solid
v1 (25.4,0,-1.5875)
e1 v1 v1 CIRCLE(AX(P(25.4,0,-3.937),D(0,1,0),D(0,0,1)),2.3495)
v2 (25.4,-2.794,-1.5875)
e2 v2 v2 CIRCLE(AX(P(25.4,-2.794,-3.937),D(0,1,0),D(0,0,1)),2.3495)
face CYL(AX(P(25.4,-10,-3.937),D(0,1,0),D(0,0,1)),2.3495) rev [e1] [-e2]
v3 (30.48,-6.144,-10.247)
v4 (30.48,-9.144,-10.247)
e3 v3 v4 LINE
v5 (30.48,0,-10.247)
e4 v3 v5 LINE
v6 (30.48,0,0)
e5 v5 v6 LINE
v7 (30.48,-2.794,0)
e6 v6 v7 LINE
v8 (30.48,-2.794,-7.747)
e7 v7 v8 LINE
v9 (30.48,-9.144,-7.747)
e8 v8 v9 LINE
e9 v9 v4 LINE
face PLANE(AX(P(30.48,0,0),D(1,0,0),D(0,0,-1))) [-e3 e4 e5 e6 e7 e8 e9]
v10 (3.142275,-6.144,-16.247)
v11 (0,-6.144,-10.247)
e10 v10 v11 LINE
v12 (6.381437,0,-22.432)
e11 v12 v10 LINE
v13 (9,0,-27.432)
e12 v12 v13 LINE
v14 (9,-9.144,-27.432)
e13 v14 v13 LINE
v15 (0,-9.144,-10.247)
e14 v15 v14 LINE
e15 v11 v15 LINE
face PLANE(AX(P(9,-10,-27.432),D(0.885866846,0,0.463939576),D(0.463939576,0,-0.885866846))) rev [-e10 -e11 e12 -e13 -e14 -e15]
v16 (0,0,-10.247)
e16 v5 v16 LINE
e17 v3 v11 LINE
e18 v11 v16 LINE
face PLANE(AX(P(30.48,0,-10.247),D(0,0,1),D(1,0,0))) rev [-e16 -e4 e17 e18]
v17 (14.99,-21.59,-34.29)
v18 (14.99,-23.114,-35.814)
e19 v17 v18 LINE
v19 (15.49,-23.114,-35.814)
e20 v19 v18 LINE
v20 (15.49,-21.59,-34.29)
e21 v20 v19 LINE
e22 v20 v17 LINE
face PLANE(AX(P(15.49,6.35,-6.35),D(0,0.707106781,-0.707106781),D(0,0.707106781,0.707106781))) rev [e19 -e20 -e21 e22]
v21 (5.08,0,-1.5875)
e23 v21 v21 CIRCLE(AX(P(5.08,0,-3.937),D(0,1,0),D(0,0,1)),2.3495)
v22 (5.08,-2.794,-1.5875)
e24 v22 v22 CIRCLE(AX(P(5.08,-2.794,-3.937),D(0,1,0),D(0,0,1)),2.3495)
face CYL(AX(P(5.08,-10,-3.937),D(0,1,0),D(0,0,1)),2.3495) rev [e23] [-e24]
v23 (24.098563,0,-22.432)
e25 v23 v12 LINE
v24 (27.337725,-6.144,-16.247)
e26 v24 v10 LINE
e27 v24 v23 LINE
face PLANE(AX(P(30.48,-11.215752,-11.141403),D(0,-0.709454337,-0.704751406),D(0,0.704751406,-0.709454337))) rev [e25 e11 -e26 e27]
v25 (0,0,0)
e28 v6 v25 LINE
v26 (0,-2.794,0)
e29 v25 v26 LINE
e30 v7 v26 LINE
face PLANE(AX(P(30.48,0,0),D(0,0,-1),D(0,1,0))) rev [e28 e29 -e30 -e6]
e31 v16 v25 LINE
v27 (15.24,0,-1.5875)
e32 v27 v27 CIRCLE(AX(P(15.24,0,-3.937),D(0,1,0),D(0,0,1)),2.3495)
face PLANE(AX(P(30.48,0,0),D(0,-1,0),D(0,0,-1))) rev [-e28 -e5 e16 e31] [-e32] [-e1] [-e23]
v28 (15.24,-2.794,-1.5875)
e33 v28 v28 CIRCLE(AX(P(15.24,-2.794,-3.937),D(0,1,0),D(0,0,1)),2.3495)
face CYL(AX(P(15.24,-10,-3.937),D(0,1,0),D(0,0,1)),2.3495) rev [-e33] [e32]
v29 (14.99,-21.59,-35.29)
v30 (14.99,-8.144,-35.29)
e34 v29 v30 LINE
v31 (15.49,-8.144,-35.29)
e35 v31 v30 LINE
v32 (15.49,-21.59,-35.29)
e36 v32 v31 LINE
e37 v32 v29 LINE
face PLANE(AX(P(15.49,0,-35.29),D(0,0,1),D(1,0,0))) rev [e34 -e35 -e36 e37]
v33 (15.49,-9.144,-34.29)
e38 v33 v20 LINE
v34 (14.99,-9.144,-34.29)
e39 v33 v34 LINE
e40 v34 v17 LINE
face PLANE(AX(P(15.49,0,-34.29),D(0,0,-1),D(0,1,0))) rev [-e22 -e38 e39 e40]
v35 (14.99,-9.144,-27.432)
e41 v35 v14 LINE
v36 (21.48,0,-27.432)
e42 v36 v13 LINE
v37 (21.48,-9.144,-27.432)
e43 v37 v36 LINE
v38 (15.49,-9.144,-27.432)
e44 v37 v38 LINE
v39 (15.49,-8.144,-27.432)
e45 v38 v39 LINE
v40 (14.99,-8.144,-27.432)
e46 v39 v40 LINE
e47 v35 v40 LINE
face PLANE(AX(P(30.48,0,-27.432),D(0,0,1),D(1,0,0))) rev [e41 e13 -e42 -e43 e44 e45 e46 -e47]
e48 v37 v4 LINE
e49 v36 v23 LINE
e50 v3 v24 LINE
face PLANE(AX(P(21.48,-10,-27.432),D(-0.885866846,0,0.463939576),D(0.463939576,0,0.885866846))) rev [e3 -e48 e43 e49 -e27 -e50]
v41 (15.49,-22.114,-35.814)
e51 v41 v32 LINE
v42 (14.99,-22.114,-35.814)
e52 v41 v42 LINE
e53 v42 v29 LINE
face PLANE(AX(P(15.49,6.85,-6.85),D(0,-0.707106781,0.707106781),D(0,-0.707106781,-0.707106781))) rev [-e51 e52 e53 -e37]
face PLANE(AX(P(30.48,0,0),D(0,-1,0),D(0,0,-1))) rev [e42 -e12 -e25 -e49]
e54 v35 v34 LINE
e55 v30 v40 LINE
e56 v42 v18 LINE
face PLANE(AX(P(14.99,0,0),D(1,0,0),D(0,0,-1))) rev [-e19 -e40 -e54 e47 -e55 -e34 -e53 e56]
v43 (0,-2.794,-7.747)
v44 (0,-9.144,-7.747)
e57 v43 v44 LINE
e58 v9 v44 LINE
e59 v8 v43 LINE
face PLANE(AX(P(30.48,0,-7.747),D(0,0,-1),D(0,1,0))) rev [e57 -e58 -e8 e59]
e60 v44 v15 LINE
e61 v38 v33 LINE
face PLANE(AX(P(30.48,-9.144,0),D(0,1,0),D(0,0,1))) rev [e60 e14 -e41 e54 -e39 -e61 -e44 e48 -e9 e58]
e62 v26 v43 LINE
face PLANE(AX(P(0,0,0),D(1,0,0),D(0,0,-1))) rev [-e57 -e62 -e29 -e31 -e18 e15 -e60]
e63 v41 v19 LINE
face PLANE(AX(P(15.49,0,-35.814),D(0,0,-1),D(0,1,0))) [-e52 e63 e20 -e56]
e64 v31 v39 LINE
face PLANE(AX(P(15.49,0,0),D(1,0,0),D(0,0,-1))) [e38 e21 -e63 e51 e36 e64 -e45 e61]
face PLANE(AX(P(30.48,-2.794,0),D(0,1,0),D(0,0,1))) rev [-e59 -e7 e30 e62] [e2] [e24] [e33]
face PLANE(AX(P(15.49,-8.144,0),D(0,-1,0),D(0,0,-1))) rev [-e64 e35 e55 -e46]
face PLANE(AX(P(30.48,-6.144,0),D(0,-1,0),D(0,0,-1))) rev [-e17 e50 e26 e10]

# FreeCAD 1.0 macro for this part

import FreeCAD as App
import Part
import Sketcher
Q = App.Units.Quantity


def add_polygon(sketch, points):
    """Adds a closed chain of lines whose ends are joined by coincident constraints."""
    first, n = sketch.GeometryCount, len(points)
    for a, b in zip(points, points[1:] + points[:1]):
        sketch.addGeometry(Part.LineSegment(App.Vector(*a, 0), App.Vector(*b, 0)), False)
    for i in range(n):
        sketch.addConstraint(Sketcher.Constraint("Coincident", first + i, 2, first + (i + 1) % n, 1))

doc = App.newDocument("Part")
body = doc.addObject("PartDesign::Body", "Body")

# Sketch on YZ plane
sketch1 = doc.addObject("Sketcher::SketchObject", "Sketch")
body.addObject(sketch1)
sketch1.AttachmentSupport = (doc.YZ_Plane, [""])
sketch1.MapMode = "FlatFace"
add_polygon(sketch1, [(-6.1, -10.2), (0, -10.2), (0, 0), (-2.8, 0), (-2.8, -7.7), (-9.1, -7.7), (-9.1, -27.4), (0, -27.4), (0, -22.4), (-6.1, -16.2)])  # lines 0-9
sketch1.addConstraint(Sketcher.Constraint("Horizontal", 0))
sketch1.addConstraint(Sketcher.Constraint("Vertical", 1))
sketch1.addConstraint(Sketcher.Constraint("Horizontal", 2))
sketch1.addConstraint(Sketcher.Constraint("Vertical", 3))
sketch1.addConstraint(Sketcher.Constraint("Horizontal", 4))
sketch1.addConstraint(Sketcher.Constraint("Vertical", 5))
sketch1.addConstraint(Sketcher.Constraint("Horizontal", 6))
sketch1.addConstraint(Sketcher.Constraint("Vertical", 7))
sketch1.addConstraint(Sketcher.Constraint("Vertical", 9))
sketch1.addConstraint(Sketcher.Constraint("Coincident", 1, 2, -1, 1))
sketch1.addConstraint(Sketcher.Constraint("PointOnObject", 6, 2, -2))
sketch1.addConstraint(Sketcher.Constraint("DistanceX", 2, 2, 2, 1, Q("0.11 in")))
sketch1.addConstraint(Sketcher.Constraint("DistanceX", 4, 2, 4, 1, Q("0.25 in")))
sketch1.addConstraint(Sketcher.Constraint("DistanceY", 3, 2, 3, 1, Q("0.305 in")))
sketch1.addConstraint(Sketcher.Constraint("DistanceY", 5, 2, 5, 1, Q("0.775 in")))
sketch1.addConstraint(Sketcher.Constraint("DistanceX", 0, 1, 0, 2, Q("6.144 mm")))
sketch1.addConstraint(Sketcher.Constraint("DistanceY", 1, 1, 1, 2, Q("10.247 mm")))
sketch1.addConstraint(Sketcher.Constraint("DistanceY", 7, 1, 7, 2, Q("5 mm")))
sketch1.addConstraint(Sketcher.Constraint("DistanceY", 9, 1, 9, 2, Q("6 mm")))
pad1 = doc.addObject("PartDesign::Pad", "Pad")
body.addObject(pad1)
pad1.Profile = sketch1
pad1.Length = Q("1.2 in")

# Sketch on XZ plane
sketch2 = doc.addObject("Sketcher::SketchObject", "Sketch001")
body.addObject(sketch2)
sketch2.AttachmentSupport = (doc.XZ_Plane, [""])
sketch2.MapMode = "FlatFace"
sketch2.addGeometry(Part.Circle(App.Vector(5.1, -3.9, 0), App.Vector(0, 0, 1), 2.3), False)  # 0
sketch2.addGeometry(Part.Circle(App.Vector(15.2, -3.9, 0), App.Vector(0, 0, 1), 2.3), False)  # 1
sketch2.addGeometry(Part.Circle(App.Vector(25.4, -3.9, 0), App.Vector(0, 0, 1), 2.3), False)  # 2
add_polygon(sketch2, [(0, -10.2), (9, -27.4), (0, -27.4)])  # lines 3-5
add_polygon(sketch2, [(21.5, -27.4), (30.5, -10.2), (30.5, -27.4)])  # lines 6-8
sketch2.addConstraint(Sketcher.Constraint("Horizontal", 4))
sketch2.addConstraint(Sketcher.Constraint("Vertical", 5))
sketch2.addConstraint(Sketcher.Constraint("Vertical", 7))
sketch2.addConstraint(Sketcher.Constraint("Horizontal", 8))
sketch2.addConstraint(Sketcher.Constraint("Equal", 0, 1))
sketch2.addConstraint(Sketcher.Constraint("Equal", 1, 2))
sketch2.addConstraint(Sketcher.Constraint("PointOnObject", 4, 2, -2))
sketch2.addConstraint(Sketcher.Constraint("Horizontal", 0, 3, 1, 3))
sketch2.addConstraint(Sketcher.Constraint("Horizontal", 1, 3, 2, 3))
sketch2.addConstraint(Sketcher.Constraint("Horizontal", 5, 2, 6, 2))
sketch2.addConstraint(Sketcher.Constraint("Horizontal", 4, 2, 7, 2))
sketch2.addConstraint(Sketcher.Constraint("Equal", 4, 8))
sketch2.addConstraint(Sketcher.Constraint("Diameter", 0, Q("0.185 in")))
sketch2.addConstraint(Sketcher.Constraint("DistanceX", -1, 1, 2, 3, Q("1 in")))
sketch2.addConstraint(Sketcher.Constraint("DistanceX", 0, 3, 6, 2, Q("1 in")))
sketch2.addConstraint(Sketcher.Constraint("DistanceX", -1, 1, 0, 3, Q("0.2 in")))
sketch2.addConstraint(Sketcher.Constraint("DistanceX", -1, 1, 1, 3, Q("0.6 in")))
sketch2.addConstraint(Sketcher.Constraint("DistanceY", 3, 2, -1, 1, Q("1.08 in")))
sketch2.addConstraint(Sketcher.Constraint("DistanceY", 0, 3, -1, 1, Q("0.155 in")))
sketch2.addConstraint(Sketcher.Constraint("DistanceX", 4, 2, 4, 1, Q("9 mm")))
sketch2.addConstraint(Sketcher.Constraint("DistanceY", 5, 1, 5, 2, Q("17.185 mm")))
pocket1 = doc.addObject("PartDesign::Pocket", "Pocket")
body.addObject(pocket1)
pocket1.Profile = sketch2
pocket1.Length = 10
pocket1.Reversed = True

# Sketch on YZ plane
sketch3 = doc.addObject("Sketcher::SketchObject", "Sketch002")
body.addObject(sketch3)
sketch3.AttachmentSupport = (doc.YZ_Plane, [""])
sketch3.MapMode = "FlatFace"
sketch3.AttachmentOffset = App.Placement(App.Vector(0, 0, 14.99), App.Rotation())
add_polygon(sketch3, [(-22.1, -35.8), (-21.6, -35.3), (-8.1, -35.3), (-8.1, -27.4), (-9.1, -27.4), (-9.1, -34.3), (-21.6, -34.3), (-23.1, -35.8)])  # lines 0-7
sketch3.addConstraint(Sketcher.Constraint("Horizontal", 1))
sketch3.addConstraint(Sketcher.Constraint("Vertical", 2))
sketch3.addConstraint(Sketcher.Constraint("Horizontal", 3))
sketch3.addConstraint(Sketcher.Constraint("Vertical", 4))
sketch3.addConstraint(Sketcher.Constraint("Horizontal", 5))
sketch3.addConstraint(Sketcher.Constraint("Horizontal", 7))
sketch3.addConstraint(Sketcher.Constraint("Parallel", 0, 6))
sketch3.addConstraint(Sketcher.Constraint("Vertical", 0, 2, 5, 2))
sketch3.addConstraint(Sketcher.Constraint("Equal", 3, 7))
sketch3.addConstraint(Sketcher.Constraint("Angle", 0, Q("45 deg")))
sketch3.addConstraint(Sketcher.Constraint("DistanceX", 5, 2, 5, 1, Q("0.49 in")))
sketch3.addConstraint(Sketcher.Constraint("DistanceY", 4, 2, 4, 1, Q("0.27 in")))
sketch3.addConstraint(Sketcher.Constraint("DistanceX", 0, 2, -1, 1, Q("0.85 in")))
sketch3.addConstraint(Sketcher.Constraint("DistanceY", 2, 2, -1, 1, Q("1.08 in")))
sketch3.addConstraint(Sketcher.Constraint("DistanceX", 6, 2, -1, 1, Q("0.91 in")))
sketch3.addConstraint(Sketcher.Constraint("DistanceX", 1, 1, 1, 2, Q("13.446 mm")))
pad2 = doc.addObject("PartDesign::Pad", "Pad001")
body.addObject(pad2)
pad2.Profile = sketch3
pad2.Length = 0.5

doc.recompute()
